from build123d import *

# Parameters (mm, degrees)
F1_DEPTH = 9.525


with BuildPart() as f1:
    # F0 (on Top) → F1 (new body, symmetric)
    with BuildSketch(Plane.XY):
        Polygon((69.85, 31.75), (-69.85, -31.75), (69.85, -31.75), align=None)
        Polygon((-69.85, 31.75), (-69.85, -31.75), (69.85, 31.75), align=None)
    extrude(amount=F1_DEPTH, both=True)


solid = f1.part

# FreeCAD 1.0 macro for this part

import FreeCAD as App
import Part
import Sketcher

V = App.Vector
Q = App.Units.Quantity

doc = App.newDocument("Part")
params = doc.addObject("Spreadsheet::Sheet", "Params")
for row, (alias, value) in enumerate([
    ("sketch1_width", "5.5 in"),
    ("sketch1_height", "2.5 in"),
    ("pad1_length", "0.75 in"),
], start=1):
    params.set(f"A{row}", alias)
    params.set(f"B{row}", "=" + value)
    params.setAlias(f"B{row}", alias)

body = doc.addObject("PartDesign::Body", "Body")

sketch1 = body.newObject("Sketcher::SketchObject", "Sketch")
sketch1.AttachmentSupport = (doc.getObject("XY_Plane"), [""])
sketch1.MapMode = "FlatFace"
sketch1.addGeometry(Part.LineSegment(V(-70, -32, 0), V(70, -32, 0)), False)
sketch1.addGeometry(Part.LineSegment(V(70, -32, 0), V(70, 32, 0)), False)
sketch1.addGeometry(Part.LineSegment(V(70, 32, 0), V(-70, 32, 0)), False)
sketch1.addGeometry(Part.LineSegment(V(-70, 32, 0), V(-70, -32, 0)), False)
sketch1.addConstraint(Sketcher.Constraint("Coincident", 0, 2, 1, 1))
sketch1.addConstraint(Sketcher.Constraint("Coincident", 1, 2, 2, 1))
sketch1.addConstraint(Sketcher.Constraint("Coincident", 2, 2, 3, 1))
sketch1.addConstraint(Sketcher.Constraint("Coincident", 3, 2, 0, 1))
sketch1.addConstraint(Sketcher.Constraint("Horizontal", 0))
sketch1.addConstraint(Sketcher.Constraint("Vertical", 1))
sketch1.addConstraint(Sketcher.Constraint("Horizontal", 2))
sketch1.addConstraint(Sketcher.Constraint("Vertical", 3))
sketch1.addConstraint(Sketcher.Constraint("Symmetric", 0, 2, 2, 2, -1, 1))
sketch1.addConstraint(Sketcher.Constraint("DistanceX", 0, 1, 0, 2, Q("5.5 in")))
sketch1.addConstraint(Sketcher.Constraint("DistanceY", 1, 1, 1, 2, Q("2.5 in")))
sketch1.setExpression("Constraints[9]", "Params.sketch1_width")
sketch1.setExpression("Constraints[10]", "Params.sketch1_height")
pad1 = body.newObject("PartDesign::Pad", "Pad")
pad1.Profile = sketch1
pad1.setExpression("Length", "Params.pad1_length")
pad1.Midplane = True

doc.recompute()
